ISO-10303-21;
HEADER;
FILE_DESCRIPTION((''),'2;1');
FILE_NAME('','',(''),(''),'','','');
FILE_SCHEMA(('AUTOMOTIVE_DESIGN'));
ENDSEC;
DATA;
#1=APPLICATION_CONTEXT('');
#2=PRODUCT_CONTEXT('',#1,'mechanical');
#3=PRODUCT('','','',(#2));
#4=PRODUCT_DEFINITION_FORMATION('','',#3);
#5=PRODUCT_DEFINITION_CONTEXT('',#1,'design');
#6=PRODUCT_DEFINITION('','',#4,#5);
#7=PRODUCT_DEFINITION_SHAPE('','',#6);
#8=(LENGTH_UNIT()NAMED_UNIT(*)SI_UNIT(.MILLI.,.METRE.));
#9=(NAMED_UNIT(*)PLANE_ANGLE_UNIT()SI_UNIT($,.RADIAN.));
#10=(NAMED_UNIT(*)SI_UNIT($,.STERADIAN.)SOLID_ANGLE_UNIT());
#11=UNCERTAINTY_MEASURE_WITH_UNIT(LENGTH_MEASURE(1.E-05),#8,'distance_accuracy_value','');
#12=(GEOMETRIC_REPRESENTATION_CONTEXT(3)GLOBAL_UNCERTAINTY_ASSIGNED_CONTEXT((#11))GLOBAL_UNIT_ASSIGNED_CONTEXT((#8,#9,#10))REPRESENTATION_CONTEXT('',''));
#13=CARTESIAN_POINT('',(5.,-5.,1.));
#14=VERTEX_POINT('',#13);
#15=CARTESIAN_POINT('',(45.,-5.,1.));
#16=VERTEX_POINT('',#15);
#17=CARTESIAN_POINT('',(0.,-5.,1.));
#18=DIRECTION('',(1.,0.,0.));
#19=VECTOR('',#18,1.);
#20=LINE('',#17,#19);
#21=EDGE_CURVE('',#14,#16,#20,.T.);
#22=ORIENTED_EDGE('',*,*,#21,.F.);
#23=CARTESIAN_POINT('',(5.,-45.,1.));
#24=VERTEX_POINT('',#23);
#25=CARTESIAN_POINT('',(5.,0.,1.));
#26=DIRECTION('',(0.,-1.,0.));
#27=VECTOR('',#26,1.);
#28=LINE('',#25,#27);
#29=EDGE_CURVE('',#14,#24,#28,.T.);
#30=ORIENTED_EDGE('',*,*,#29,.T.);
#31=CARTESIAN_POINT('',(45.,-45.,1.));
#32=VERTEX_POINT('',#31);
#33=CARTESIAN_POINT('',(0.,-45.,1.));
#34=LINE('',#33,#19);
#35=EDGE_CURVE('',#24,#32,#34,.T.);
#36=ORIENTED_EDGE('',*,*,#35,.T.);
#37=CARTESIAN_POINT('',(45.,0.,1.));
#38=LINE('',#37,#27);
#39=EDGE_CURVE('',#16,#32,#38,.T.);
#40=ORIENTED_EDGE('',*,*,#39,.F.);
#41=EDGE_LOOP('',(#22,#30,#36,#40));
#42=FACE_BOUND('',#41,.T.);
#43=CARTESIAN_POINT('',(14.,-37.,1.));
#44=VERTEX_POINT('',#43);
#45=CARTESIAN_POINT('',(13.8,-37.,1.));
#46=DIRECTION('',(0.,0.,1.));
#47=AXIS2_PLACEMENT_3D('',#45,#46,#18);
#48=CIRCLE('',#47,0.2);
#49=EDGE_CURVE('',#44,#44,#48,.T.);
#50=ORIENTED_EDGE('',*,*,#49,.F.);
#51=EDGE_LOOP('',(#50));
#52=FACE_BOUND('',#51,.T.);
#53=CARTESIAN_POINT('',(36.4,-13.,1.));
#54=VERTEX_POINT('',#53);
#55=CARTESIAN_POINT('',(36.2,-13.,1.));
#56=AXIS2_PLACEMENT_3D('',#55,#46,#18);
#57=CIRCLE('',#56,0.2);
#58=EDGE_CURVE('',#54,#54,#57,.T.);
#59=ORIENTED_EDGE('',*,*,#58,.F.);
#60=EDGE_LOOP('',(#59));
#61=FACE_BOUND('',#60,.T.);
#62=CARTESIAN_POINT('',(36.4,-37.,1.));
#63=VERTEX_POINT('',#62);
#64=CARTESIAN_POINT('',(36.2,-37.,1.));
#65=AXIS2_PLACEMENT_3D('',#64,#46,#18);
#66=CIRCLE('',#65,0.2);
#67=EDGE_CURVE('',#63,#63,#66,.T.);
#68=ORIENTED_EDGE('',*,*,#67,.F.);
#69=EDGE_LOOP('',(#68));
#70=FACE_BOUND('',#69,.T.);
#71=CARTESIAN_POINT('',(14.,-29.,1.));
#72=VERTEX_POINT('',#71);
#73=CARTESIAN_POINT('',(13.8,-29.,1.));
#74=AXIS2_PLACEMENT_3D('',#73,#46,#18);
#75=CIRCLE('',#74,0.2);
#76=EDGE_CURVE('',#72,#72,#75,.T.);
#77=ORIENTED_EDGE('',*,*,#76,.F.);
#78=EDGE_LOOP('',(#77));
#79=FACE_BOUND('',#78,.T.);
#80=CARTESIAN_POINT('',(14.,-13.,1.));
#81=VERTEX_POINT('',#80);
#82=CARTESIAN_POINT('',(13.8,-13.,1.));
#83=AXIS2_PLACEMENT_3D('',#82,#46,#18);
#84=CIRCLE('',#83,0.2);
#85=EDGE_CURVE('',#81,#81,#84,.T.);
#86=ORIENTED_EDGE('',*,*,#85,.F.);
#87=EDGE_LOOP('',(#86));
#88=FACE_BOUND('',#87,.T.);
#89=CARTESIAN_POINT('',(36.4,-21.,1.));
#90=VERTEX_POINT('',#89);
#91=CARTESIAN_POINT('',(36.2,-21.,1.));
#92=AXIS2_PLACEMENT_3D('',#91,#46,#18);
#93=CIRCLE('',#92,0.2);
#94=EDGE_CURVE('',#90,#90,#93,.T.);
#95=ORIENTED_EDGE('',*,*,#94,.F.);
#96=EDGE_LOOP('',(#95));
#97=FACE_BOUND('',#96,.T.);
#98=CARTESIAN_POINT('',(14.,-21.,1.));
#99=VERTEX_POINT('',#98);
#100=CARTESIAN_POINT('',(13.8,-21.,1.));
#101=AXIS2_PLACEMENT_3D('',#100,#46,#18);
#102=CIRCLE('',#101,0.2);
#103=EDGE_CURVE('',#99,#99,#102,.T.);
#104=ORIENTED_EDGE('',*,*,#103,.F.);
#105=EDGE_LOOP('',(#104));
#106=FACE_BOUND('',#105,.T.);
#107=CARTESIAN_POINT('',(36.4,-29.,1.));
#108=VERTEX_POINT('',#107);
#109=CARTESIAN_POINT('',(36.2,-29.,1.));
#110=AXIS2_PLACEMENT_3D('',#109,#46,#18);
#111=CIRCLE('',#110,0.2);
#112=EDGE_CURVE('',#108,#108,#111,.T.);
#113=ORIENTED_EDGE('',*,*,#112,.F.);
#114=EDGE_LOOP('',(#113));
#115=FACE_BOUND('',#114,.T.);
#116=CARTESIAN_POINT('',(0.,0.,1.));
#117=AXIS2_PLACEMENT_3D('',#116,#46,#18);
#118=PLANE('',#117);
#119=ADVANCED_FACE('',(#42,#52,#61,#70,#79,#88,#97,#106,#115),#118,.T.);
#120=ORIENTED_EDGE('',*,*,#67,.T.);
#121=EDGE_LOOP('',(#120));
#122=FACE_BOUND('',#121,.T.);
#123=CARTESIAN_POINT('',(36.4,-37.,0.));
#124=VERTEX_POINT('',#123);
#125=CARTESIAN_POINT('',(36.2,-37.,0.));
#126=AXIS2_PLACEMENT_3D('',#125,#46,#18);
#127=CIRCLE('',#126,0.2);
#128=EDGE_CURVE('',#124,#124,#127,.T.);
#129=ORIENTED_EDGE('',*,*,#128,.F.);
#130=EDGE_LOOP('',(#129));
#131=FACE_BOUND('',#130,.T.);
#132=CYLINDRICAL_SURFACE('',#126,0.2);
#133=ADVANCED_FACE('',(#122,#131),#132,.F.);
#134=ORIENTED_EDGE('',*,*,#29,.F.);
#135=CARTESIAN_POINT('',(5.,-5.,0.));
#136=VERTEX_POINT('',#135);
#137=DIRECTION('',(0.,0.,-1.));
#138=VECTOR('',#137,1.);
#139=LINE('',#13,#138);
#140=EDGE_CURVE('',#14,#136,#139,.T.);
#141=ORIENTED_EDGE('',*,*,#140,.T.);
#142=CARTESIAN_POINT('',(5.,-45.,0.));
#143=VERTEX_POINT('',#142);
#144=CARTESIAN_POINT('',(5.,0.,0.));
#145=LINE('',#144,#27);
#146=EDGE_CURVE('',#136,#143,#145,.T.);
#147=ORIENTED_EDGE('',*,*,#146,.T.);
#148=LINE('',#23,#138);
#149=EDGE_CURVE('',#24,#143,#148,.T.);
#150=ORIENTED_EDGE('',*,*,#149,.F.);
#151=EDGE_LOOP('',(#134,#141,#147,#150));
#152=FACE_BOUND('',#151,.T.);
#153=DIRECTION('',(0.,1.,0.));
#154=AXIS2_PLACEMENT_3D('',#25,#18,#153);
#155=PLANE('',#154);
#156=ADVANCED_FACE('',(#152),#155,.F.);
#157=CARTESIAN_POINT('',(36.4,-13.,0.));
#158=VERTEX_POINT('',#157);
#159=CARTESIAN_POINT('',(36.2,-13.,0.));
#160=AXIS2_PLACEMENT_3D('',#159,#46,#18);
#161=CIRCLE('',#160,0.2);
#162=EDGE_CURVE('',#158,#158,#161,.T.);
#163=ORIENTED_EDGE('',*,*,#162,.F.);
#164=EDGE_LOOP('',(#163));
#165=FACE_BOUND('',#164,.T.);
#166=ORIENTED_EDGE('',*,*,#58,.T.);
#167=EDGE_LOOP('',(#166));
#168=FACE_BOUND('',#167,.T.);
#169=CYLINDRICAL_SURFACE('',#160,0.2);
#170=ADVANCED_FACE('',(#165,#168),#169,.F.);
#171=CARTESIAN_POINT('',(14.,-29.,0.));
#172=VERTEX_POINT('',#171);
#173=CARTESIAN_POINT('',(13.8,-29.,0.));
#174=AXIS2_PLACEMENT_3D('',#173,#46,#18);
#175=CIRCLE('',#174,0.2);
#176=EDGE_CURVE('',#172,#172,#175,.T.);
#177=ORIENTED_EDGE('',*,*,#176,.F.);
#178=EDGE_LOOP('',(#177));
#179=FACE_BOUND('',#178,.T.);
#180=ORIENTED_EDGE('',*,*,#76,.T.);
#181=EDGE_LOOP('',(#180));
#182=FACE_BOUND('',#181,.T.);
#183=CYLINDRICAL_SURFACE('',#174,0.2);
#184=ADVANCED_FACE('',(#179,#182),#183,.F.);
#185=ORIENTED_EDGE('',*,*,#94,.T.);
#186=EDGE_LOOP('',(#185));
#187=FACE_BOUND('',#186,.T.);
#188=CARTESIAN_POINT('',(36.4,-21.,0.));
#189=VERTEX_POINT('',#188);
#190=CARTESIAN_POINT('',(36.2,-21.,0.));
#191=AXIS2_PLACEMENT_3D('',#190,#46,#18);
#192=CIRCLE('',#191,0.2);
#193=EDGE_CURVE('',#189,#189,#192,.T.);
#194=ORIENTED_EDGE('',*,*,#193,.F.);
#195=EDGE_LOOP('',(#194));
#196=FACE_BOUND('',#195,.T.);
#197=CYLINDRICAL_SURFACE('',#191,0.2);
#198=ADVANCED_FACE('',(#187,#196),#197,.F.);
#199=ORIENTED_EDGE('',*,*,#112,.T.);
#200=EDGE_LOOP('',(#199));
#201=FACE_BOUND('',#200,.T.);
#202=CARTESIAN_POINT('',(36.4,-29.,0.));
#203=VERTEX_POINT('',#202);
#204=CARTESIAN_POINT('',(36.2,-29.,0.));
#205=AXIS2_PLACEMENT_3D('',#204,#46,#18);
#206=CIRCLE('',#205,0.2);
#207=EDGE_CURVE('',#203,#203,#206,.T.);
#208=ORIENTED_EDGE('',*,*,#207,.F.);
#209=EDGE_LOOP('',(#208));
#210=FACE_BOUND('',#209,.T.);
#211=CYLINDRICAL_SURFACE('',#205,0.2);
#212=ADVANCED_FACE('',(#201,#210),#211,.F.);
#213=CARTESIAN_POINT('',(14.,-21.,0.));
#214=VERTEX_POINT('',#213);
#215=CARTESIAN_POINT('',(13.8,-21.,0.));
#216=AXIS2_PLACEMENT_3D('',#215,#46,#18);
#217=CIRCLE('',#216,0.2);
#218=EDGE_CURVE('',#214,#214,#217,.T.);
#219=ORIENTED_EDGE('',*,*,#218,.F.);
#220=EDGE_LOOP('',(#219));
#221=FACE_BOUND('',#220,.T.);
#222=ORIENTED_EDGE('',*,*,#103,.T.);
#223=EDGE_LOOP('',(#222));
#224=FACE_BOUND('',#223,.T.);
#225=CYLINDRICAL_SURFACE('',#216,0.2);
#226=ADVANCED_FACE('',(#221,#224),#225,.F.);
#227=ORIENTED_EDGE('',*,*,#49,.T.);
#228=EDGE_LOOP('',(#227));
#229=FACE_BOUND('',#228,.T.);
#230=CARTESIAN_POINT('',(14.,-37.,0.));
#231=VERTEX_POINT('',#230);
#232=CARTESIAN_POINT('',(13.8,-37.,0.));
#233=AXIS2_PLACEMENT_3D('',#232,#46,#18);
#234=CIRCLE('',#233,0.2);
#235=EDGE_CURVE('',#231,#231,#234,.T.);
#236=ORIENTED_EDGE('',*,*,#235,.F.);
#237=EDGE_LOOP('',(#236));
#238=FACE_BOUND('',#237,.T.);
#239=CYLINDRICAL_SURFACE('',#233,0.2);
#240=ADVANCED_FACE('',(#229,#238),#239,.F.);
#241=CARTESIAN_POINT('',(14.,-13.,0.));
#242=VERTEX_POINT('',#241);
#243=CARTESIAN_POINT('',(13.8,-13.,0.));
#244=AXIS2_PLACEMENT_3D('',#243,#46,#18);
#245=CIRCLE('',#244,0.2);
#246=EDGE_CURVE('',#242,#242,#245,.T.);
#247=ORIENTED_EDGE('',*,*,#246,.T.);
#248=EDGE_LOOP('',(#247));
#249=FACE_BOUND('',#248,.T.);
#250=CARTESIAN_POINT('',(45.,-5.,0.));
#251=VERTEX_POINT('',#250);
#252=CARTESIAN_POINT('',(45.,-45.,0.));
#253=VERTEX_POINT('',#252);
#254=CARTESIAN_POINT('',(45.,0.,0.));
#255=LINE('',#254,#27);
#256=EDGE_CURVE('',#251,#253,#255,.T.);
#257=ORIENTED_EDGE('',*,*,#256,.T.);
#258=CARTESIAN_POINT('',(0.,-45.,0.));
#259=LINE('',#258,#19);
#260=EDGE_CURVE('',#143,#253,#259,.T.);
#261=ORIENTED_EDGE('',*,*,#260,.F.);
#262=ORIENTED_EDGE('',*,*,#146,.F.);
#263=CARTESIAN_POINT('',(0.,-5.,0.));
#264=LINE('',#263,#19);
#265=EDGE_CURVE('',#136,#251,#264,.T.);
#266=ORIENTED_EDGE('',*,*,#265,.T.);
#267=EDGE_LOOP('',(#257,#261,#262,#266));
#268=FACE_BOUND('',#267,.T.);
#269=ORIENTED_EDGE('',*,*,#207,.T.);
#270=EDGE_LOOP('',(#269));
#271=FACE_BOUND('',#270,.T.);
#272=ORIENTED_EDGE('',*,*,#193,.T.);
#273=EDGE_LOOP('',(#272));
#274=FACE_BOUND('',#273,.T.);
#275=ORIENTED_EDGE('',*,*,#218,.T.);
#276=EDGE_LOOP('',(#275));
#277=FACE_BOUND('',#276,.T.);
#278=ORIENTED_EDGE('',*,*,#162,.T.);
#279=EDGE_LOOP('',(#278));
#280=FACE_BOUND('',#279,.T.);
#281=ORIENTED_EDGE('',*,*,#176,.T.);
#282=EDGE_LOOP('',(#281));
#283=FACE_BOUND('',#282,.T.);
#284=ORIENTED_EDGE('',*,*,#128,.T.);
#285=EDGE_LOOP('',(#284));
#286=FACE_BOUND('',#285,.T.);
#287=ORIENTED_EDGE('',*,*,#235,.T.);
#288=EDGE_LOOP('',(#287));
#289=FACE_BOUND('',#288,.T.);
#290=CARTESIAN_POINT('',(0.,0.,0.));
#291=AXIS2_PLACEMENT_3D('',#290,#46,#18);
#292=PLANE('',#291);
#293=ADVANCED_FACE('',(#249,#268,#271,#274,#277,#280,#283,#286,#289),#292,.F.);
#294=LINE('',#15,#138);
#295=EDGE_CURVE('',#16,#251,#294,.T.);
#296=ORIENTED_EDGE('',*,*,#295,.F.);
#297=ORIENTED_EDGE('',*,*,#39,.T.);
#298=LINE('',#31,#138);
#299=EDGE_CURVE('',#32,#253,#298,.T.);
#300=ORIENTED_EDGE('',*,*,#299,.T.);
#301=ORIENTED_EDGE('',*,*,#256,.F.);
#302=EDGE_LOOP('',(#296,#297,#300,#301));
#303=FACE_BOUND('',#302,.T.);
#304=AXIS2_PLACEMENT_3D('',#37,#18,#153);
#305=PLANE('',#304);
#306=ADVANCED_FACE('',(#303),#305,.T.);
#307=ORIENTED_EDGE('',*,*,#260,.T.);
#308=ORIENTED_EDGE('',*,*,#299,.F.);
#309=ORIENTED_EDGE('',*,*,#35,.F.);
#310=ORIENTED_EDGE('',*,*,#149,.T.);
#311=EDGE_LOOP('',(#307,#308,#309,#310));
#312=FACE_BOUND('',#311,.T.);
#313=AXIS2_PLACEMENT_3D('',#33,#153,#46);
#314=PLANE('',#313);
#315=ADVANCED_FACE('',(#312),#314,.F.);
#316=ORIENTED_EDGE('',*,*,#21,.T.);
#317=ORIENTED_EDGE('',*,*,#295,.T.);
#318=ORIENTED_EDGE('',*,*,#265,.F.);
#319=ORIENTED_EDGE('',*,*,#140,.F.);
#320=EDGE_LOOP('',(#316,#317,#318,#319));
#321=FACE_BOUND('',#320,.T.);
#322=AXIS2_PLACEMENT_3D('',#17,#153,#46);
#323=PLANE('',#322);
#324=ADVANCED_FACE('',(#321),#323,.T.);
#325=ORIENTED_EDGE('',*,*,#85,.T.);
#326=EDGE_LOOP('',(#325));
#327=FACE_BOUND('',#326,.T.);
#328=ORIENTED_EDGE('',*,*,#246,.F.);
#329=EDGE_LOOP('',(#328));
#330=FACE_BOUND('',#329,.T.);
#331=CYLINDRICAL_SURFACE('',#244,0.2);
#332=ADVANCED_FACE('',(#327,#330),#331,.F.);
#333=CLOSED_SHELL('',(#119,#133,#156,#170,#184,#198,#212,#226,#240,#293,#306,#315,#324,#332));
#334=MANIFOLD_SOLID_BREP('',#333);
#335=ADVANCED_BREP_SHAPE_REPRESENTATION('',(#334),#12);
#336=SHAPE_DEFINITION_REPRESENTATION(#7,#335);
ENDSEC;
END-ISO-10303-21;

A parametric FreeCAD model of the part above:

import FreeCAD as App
import Part
import Sketcher

V = App.Vector


def add_polygon(sketch, points):
    """Adds a closed chain of lines whose ends are joined by coincident constraints."""
    first, n = sketch.GeometryCount, len(points)
    for a, b in zip(points, points[1:] + points[:1]):
        sketch.addGeometry(Part.LineSegment(App.Vector(*a, 0), App.Vector(*b, 0)), False)
    for i in range(n):
        sketch.addConstraint(Sketcher.Constraint("Coincident", first + i, 2, first + (i + 1) % n, 1))

doc = App.newDocument("Part")
body = doc.addObject("PartDesign::Body", "Body")

# Sketch on XY plane
sketch1 = body.newObject("Sketcher::SketchObject", "Sketch")
sketch1.AttachmentSupport = (doc.getObject("XY_Plane"), [""])
sketch1.MapMode = "FlatFace"
add_polygon(sketch1, [(5, -5), (5, -45), (45, -45), (45, -5)])  # lines 0-3
sketch1.addConstraint([
    Sketcher.Constraint("Vertical", 0),
    Sketcher.Constraint("Horizontal", 1),
    Sketcher.Constraint("Vertical", 2),
    Sketcher.Constraint("Horizontal", 3),
    Sketcher.Constraint("Equal", 3, 0),
    Sketcher.Constraint("DistanceX", 1, 1, 1, 2, 40.0),
    Sketcher.Constraint("DistanceX", -1, 1, 0, 2, 5.0),
    Sketcher.Constraint("DistanceY", 0, 2, -1, 1, 45.0),
])
pad1 = body.newObject("PartDesign::Pad", "Pad")
pad1.Profile = sketch1
pad1.Length = 1

# Sketch on XY plane
sketch2 = body.newObject("Sketcher::SketchObject", "Sketch001")
sketch2.AttachmentSupport = (doc.getObject("XY_Plane"), [""])
sketch2.MapMode = "FlatFace"
sketch2.AttachmentOffset = App.Placement(V(0, 0, 1), App.Rotation())
sketch2.addGeometry([
    Part.Circle(V(13.8, -13, 0), V(0, 0, 1), 0.2),  # 0
    Part.Circle(V(36.2, -13, 0), V(0, 0, 1), 0.2),  # 1
    Part.Circle(V(36.2, -21, 0), V(0, 0, 1), 0.2),  # 2
    Part.Circle(V(13.8, -21, 0), V(0, 0, 1), 0.2),  # 3
    Part.Circle(V(13.8, -29, 0), V(0, 0, 1), 0.2),  # 4
    Part.Circle(V(36.2, -29, 0), V(0, 0, 1), 0.2),  # 5
    Part.Circle(V(36.2, -37, 0), V(0, 0, 1), 0.2),  # 6
    Part.Circle(V(13.8, -37, 0), V(0, 0, 1), 0.2),  # 7
], False)
sketch2.addConstraint([
    Sketcher.Constraint("Equal", 0, 1),
    Sketcher.Constraint("Equal", 1, 2),
    Sketcher.Constraint("Equal", 2, 3),
    Sketcher.Constraint("Equal", 3, 4),
    Sketcher.Constraint("Equal", 4, 5),
    Sketcher.Constraint("Equal", 5, 6),
    Sketcher.Constraint("Equal", 6, 7),
    Sketcher.Constraint("Horizontal", 0, 3, 1, 3),
    Sketcher.Constraint("Horizontal", 2, 3, 3, 3),
    Sketcher.Constraint("Horizontal", 4, 3, 5, 3),
    Sketcher.Constraint("Horizontal", 6, 3, 7, 3),
    Sketcher.Constraint("Vertical", 1, 3, 2, 3),
    Sketcher.Constraint("Vertical", 0, 3, 3, 3),
    Sketcher.Constraint("Vertical", 3, 3, 4, 3),
    Sketcher.Constraint("Vertical", 2, 3, 5, 3),
    Sketcher.Constraint("Vertical", 5, 3, 6, 3),
    Sketcher.Constraint("Vertical", 4, 3, 7, 3),
    Sketcher.Constraint("Diameter", 0, 0.4),
    Sketcher.Constraint("DistanceY", 0, 3, -1, 1, 13.0),
    Sketcher.Constraint("DistanceY", 2, 3, -1, 1, 21.0),
    Sketcher.Constraint("DistanceY", 4, 3, -1, 1, 29.0),
    Sketcher.Constraint("DistanceY", 6, 3, -1, 1, 37.0),
    Sketcher.Constraint("DistanceX", -1, 1, 0, 3, 13.8),
    Sketcher.Constraint("DistanceX", -1, 1, 1, 3, 36.2),
])
pocket1 = body.newObject("PartDesign::Pocket", "Pocket")
pocket1.Profile = sketch2
pocket1.Length = 1

doc.recompute()
